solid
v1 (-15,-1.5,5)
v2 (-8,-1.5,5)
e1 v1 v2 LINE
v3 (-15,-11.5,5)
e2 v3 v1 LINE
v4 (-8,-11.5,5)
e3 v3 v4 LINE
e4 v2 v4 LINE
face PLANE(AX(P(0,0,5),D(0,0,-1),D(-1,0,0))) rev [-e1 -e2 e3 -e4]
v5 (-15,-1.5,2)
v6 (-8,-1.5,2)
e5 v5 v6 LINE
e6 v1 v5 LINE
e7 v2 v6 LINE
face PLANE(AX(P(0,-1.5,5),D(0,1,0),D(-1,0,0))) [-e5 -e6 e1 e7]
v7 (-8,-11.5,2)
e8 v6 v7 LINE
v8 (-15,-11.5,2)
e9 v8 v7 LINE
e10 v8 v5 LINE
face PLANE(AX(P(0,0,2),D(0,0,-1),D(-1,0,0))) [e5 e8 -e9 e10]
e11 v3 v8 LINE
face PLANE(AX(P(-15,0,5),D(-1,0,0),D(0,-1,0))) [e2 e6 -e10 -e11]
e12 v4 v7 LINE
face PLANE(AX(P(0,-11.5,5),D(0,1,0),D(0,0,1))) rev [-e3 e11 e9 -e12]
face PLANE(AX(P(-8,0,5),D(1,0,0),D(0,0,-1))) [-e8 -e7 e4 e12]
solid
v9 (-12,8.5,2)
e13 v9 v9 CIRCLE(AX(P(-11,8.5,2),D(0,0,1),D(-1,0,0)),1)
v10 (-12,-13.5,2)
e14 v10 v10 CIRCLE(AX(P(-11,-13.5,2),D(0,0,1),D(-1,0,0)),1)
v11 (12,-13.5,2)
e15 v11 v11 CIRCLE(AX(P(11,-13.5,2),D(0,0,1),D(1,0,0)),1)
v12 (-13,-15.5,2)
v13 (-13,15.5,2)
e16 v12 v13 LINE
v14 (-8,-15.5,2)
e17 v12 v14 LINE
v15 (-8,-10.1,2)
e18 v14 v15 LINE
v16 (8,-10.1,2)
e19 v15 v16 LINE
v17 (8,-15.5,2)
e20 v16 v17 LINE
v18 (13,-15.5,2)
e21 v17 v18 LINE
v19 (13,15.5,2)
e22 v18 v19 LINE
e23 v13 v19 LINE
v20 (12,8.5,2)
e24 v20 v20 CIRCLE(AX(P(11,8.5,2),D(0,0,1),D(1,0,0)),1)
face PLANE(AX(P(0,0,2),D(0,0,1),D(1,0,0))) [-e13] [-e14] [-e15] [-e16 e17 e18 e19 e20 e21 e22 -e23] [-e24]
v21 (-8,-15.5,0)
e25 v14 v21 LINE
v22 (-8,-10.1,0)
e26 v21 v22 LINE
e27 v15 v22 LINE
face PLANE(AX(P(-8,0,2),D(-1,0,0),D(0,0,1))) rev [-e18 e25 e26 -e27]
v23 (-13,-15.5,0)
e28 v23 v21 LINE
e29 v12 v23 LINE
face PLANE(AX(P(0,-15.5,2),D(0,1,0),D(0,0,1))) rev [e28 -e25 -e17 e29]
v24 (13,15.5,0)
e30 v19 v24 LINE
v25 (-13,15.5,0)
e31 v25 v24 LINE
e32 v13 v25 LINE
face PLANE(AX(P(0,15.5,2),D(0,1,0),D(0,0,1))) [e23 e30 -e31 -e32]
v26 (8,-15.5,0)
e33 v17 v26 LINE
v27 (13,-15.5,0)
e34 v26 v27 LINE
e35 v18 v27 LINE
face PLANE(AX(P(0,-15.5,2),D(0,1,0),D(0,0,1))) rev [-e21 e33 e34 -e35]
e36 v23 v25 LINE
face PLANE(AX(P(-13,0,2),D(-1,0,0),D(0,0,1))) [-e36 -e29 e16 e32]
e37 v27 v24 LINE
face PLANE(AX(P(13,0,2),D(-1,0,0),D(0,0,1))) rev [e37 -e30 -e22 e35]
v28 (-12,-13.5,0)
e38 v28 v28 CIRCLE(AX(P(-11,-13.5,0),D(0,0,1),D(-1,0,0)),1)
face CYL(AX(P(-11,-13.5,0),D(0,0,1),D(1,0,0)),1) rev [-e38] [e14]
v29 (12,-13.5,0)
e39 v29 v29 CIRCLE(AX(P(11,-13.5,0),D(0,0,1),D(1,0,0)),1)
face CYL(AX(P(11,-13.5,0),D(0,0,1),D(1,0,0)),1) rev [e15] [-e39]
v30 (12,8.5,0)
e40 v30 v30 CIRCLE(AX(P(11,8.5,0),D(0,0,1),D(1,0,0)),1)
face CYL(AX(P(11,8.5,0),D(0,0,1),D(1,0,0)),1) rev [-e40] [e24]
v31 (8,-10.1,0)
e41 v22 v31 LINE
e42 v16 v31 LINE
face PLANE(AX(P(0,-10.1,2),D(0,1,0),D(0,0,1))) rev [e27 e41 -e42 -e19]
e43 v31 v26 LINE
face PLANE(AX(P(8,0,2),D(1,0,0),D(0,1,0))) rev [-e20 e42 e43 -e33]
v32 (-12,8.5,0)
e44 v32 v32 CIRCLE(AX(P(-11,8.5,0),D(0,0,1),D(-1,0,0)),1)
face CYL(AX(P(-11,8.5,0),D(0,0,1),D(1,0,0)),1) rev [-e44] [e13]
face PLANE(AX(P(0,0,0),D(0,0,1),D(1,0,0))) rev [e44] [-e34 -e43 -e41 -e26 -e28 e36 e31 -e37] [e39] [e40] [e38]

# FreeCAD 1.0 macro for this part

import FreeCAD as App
import Part
import Sketcher

V = App.Vector
Q = App.Units.Quantity


def add_polygon(sketch, points):
    """Adds a closed chain of lines whose ends are joined by coincident constraints."""
    first, n = sketch.GeometryCount, len(points)
    for a, b in zip(points, points[1:] + points[:1]):
        sketch.addGeometry(Part.LineSegment(App.Vector(*a, 0), App.Vector(*b, 0)), False)
    for i in range(n):
        sketch.addConstraint(Sketcher.Constraint("Coincident", first + i, 2, first + (i + 1) % n, 1))

doc = App.newDocument("Part")
body = doc.addObject("PartDesign::Body", "Body")

sketch1 = body.newObject("Sketcher::SketchObject", "Sketch")
sketch1.AttachmentSupport = (doc.getObject("XY_Plane"), [""])
sketch1.MapMode = "FlatFace"
add_polygon(sketch1, [(-8, -10), (8, -10), (8, -16), (13, -16), (13, 16), (-13, 16), (-13, -16), (-8, -16)])
sketch1.addConstraint(Sketcher.Constraint("Horizontal", 0))
sketch1.addConstraint(Sketcher.Constraint("Vertical", 1))
sketch1.addConstraint(Sketcher.Constraint("Horizontal", 2))
sketch1.addConstraint(Sketcher.Constraint("Vertical", 3))
sketch1.addConstraint(Sketcher.Constraint("Horizontal", 4))
sketch1.addConstraint(Sketcher.Constraint("Vertical", 5))
sketch1.addConstraint(Sketcher.Constraint("Horizontal", 6))
sketch1.addConstraint(Sketcher.Constraint("Vertical", 7))
sketch1.addConstraint(Sketcher.Constraint("Symmetric", 2, 2, 4, 2, -1, 1))
sketch1.addConstraint(Sketcher.Constraint("Symmetric", 1, 2, 6, 2, -2))
sketch1.addConstraint(Sketcher.Constraint("DistanceX", 0, 1, 0, 2, Q("16 mm")))
sketch1.addConstraint(Sketcher.Constraint("DistanceX", 2, 1, 2, 2, Q("5 mm")))
sketch1.addConstraint(Sketcher.Constraint("DistanceY", 3, 1, 3, 2, Q("31 mm")))
sketch1.addConstraint(Sketcher.Constraint("DistanceY", 1, 2, 1, 1, Q("5.4 mm")))
pad1 = body.newObject("PartDesign::Pad", "Pad")
pad1.Profile = sketch1
pad1.Length = 2

sketch2 = body.newObject("Sketcher::SketchObject", "Sketch001")
sketch2.AttachmentSupport = (doc.getObject("XY_Plane"), [""])
sketch2.MapMode = "FlatFace"
sketch2.AttachmentOffset = App.Placement(V(0, 0, 2), App.Rotation())
sketch2.addGeometry(Part.Circle(V(11, -13.5, 0), V(0, 0, 1), 1), False)
sketch2.addGeometry(Part.Circle(V(-11, -13.5, 0), V(0, 0, 1), 1), False)
sketch2.addGeometry(Part.Circle(V(11, 8.5, 0), V(0, 0, 1), 1), False)
sketch2.addGeometry(Part.Circle(V(-11, 8.5, 0), V(0, 0, 1), 1), False)
sketch2.addConstraint(Sketcher.Constraint("Equal", 0, 1))
sketch2.addConstraint(Sketcher.Constraint("Equal", 1, 2))
sketch2.addConstraint(Sketcher.Constraint("Equal", 2, 3))
sketch2.addConstraint(Sketcher.Constraint("Symmetric", 0, 3, 1, 3, -2))
sketch2.addConstraint(Sketcher.Constraint("Symmetric", 2, 3, 3, 3, -2))
sketch2.addConstraint(Sketcher.Constraint("Vertical", 0, 3, 2, 3))
sketch2.addConstraint(Sketcher.Constraint("Diameter", 0, Q("2 mm")))
sketch2.addConstraint(Sketcher.Constraint("DistanceX", -1, 1, 0, 3, Q("11 mm")))
sketch2.addConstraint(Sketcher.Constraint("DistanceY", 0, 3, 2, 3, Q("22 mm")))
sketch2.addConstraint(Sketcher.Constraint("DistanceY", 0, 3, -1, 1, Q("13.5 mm")))
pocket1 = body.newObject("PartDesign::Pocket", "Pocket")
pocket1.Profile = sketch2
pocket1.Type = "ThroughAll"
body2 = doc.addObject("PartDesign::Body", "Body001")

sketch3 = body2.newObject("Sketcher::SketchObject", "Sketch002")
sketch3.AttachmentSupport = (doc.getObject("XY_Plane001"), [""])
sketch3.MapMode = "FlatFace"
sketch3.AttachmentOffset = App.Placement(V(0, 0, 2), App.Rotation())
add_polygon(sketch3, [(-15, -2), (-15, -12), (-8, -12), (-8, -2)])
sketch3.addConstraint(Sketcher.Constraint("Vertical", 0))
sketch3.addConstraint(Sketcher.Constraint("Horizontal", 1))
sketch3.addConstraint(Sketcher.Constraint("Vertical", 2))
sketch3.addConstraint(Sketcher.Constraint("Horizontal", 3))
sketch3.addConstraint(Sketcher.Constraint("DistanceX", 1, 1, 1, 2, Q("7 mm")))
sketch3.addConstraint(Sketcher.Constraint("DistanceY", 0, 2, 0, 1, Q("10 mm")))
sketch3.addConstraint(Sketcher.Constraint("DistanceX", 0, 2, -1, 1, Q("15 mm")))
sketch3.addConstraint(Sketcher.Constraint("DistanceY", 0, 2, -1, 1, Q("11.5 mm")))
pad2 = body2.newObject("PartDesign::Pad", "Pad001")
pad2.Profile = sketch3
pad2.Length = 3

doc.recompute()
